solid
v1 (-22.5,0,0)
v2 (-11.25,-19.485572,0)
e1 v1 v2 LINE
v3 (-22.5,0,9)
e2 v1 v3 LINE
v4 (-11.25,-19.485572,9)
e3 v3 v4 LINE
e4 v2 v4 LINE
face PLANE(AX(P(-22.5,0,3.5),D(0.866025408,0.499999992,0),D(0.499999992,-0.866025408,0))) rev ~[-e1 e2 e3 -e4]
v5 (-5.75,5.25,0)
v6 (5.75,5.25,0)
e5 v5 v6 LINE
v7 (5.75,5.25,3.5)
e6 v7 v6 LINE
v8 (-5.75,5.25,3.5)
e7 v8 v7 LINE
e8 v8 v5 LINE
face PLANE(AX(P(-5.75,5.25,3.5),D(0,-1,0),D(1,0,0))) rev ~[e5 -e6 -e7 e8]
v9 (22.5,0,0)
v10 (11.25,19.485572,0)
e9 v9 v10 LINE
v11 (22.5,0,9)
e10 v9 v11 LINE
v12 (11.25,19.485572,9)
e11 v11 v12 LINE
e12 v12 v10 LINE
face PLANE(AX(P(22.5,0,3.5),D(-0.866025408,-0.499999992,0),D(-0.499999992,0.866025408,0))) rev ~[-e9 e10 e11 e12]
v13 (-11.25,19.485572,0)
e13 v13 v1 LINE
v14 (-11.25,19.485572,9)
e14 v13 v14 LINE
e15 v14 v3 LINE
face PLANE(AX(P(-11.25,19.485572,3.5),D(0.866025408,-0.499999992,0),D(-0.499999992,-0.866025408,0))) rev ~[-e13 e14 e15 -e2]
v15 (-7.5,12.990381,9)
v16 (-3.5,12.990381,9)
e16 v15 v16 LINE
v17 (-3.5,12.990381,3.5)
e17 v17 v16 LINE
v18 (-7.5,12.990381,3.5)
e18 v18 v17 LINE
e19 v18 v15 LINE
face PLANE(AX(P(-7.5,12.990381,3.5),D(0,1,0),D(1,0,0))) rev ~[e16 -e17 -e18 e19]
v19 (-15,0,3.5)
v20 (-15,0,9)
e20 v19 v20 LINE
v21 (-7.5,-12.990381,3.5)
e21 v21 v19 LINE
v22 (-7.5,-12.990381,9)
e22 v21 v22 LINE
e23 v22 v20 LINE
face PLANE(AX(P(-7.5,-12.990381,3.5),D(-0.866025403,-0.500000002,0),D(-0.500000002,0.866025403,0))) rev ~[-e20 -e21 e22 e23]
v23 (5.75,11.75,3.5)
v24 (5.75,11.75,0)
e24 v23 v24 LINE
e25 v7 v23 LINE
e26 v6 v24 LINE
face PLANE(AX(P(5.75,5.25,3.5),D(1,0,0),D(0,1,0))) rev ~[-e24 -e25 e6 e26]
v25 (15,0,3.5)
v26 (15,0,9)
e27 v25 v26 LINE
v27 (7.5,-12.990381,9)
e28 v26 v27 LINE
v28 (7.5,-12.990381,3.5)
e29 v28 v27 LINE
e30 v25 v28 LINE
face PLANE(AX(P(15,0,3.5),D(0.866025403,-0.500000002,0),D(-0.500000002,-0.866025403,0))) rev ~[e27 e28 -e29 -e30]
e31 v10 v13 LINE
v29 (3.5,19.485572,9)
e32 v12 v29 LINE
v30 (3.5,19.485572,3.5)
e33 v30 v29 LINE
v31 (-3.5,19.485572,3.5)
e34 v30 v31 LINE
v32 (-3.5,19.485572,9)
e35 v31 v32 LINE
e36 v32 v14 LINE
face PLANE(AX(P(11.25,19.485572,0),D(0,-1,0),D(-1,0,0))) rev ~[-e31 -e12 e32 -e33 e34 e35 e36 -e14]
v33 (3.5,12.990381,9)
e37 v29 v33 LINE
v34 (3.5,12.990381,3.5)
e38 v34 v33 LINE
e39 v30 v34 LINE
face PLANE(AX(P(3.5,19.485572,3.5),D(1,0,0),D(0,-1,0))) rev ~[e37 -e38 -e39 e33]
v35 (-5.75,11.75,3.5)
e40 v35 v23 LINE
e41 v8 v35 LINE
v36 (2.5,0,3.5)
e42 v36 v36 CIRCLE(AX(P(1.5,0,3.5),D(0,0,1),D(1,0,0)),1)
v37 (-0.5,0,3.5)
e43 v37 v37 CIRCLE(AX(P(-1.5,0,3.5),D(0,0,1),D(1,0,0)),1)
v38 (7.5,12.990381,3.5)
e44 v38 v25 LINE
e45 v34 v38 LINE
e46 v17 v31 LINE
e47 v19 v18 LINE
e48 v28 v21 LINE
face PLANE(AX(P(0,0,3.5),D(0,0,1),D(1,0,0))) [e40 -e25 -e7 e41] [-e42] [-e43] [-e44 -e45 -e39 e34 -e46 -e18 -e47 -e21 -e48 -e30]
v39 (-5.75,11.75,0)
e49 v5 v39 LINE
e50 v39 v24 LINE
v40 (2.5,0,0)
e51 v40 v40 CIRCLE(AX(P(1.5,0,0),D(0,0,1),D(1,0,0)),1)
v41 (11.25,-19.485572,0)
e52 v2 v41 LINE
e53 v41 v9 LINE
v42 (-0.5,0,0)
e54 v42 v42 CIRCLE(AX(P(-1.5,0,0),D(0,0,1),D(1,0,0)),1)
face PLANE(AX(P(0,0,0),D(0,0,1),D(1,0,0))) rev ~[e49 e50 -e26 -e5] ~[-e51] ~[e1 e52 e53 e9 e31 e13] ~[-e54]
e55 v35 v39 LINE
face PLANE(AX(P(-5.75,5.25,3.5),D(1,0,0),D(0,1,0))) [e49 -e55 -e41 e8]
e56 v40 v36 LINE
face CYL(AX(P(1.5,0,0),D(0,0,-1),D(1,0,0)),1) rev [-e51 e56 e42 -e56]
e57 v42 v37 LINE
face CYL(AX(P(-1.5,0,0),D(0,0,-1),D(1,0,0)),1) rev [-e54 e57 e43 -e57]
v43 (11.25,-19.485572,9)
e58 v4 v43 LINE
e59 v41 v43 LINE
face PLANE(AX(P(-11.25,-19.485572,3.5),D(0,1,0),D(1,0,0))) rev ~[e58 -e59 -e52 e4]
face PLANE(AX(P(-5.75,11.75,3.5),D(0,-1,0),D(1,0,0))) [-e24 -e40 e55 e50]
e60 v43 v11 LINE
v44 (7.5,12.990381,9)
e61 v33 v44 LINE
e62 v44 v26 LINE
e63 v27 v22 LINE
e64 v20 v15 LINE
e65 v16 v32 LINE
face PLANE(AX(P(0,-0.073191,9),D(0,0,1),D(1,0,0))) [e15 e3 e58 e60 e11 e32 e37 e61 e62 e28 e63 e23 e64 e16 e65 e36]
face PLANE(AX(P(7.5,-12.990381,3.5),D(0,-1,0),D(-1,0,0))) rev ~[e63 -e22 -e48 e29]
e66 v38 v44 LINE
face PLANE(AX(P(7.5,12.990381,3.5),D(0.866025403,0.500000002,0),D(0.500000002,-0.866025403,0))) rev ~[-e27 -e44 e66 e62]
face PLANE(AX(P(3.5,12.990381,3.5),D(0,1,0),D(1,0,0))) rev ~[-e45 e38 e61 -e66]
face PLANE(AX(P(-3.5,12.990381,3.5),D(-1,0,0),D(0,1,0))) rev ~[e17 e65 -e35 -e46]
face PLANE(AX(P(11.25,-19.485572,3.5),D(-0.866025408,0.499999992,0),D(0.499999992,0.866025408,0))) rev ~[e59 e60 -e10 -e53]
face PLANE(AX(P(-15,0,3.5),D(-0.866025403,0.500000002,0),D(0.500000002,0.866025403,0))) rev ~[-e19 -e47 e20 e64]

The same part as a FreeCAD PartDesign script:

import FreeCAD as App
import Part
import Sketcher

V = App.Vector
Q = App.Units.Quantity

doc = App.newDocument("Part")
body = doc.addObject("PartDesign::Body", "Body")

# Sketch on XY plane
sketch1 = body.newObject("Sketcher::SketchObject", "Sketch")
sketch1.AttachmentSupport = (doc.getObject("XY_Plane"), [""])
sketch1.MapMode = "FlatFace"
sketch1.addGeometry([
    Part.LineSegment(V(11.2, -19.5, 0), V(22.5, 0, 0)),  # 0
    Part.LineSegment(V(22.5, 0, 0), V(11.2, 19.5, 0)),  # 1
    Part.LineSegment(V(11.2, 19.5, 0), V(-11.2, 19.5, 0)),  # 2
    Part.LineSegment(V(-11.2, 19.5, 0), V(-22.5, 0, 0)),  # 3
    Part.LineSegment(V(-22.5, 0, 0), V(-11.2, -19.5, 0)),  # 4
    Part.LineSegment(V(-11.2, -19.5, 0), V(11.2, -19.5, 0)),  # 5
    Part.Circle(V(-1.5, 0, 0), V(0, 0, 1), 1),  # 6
    Part.Circle(V(1.5, 0, 0), V(0, 0, 1), 1),  # 7
], False)
sketch1.addConstraint([
    Sketcher.Constraint("Coincident", 0, 2, 1, 1),
    Sketcher.Constraint("Coincident", 1, 2, 2, 1),
    Sketcher.Constraint("Coincident", 2, 2, 3, 1),
    Sketcher.Constraint("Coincident", 3, 2, 4, 1),
    Sketcher.Constraint("Coincident", 4, 2, 5, 1),
    Sketcher.Constraint("Coincident", 5, 2, 0, 1),
    Sketcher.Constraint("Horizontal", 2),
    Sketcher.Constraint("Horizontal", 5),
    Sketcher.Constraint("Equal", 6, 7),
    Sketcher.Constraint("Symmetric", 6, 3, 7, 3, -1, 1),
    Sketcher.Constraint("Symmetric", 0, 2, 3, 2, -1, 1),
    Sketcher.Constraint("Symmetric", 1, 2, 4, 2, -1, 1),
    Sketcher.Constraint("PointOnObject", 6, 3, -1),
    Sketcher.Constraint("PointOnObject", 0, 2, -1),
    Sketcher.Constraint("Parallel", 0, 3),
    Sketcher.Constraint("Vertical", 2, 2, 4, 2),
    Sketcher.Constraint("Diameter", 6, 2.0),
    Sketcher.Constraint("Angle", 0, Q("60.000001 deg")),
    Sketcher.Constraint("DistanceX", 2, 2, 2, 1, 22.5),
    Sketcher.Constraint("DistanceX", 6, 3, 7, 3, 3.0),
    Sketcher.Constraint("DistanceX", 7, 3, 0, 2, 21.0),
])
pad1 = body.newObject("PartDesign::Pad", "Pad")
pad1.Profile = sketch1
pad1.Length = 3.5

# Sketch on XY plane
sketch2 = body.newObject("Sketcher::SketchObject", "Sketch001")
sketch2.AttachmentSupport = (doc.getObject("XY_Plane"), [""])
sketch2.MapMode = "FlatFace"
sketch2.AttachmentOffset = App.Placement(V(0, 0, 3.5), App.Rotation())
sketch2.addGeometry([
    Part.LineSegment(V(7.5, 13, 0), V(15, 0, 0)),  # 0
    Part.LineSegment(V(15, 0, 0), V(7.5, -13, 0)),  # 1
    Part.LineSegment(V(7.5, -13, 0), V(-7.5, -13, 0)),  # 2
    Part.LineSegment(V(-7.5, -13, 0), V(-15, 0, 0)),  # 3
    Part.LineSegment(V(-15, 0, 0), V(-7.5, 13, 0)),  # 4
    Part.LineSegment(V(-7.5, 13, 0), V(-3.5, 13, 0)),  # 5
    Part.LineSegment(V(-3.5, 13, 0), V(-3.5, 19.5, 0)),  # 6
    Part.LineSegment(V(-3.5, 19.5, 0), V(-11.2, 19.5, 0)),  # 7
    Part.LineSegment(V(-11.2, 19.5, 0), V(-22.5, 0, 0)),  # 8
    Part.LineSegment(V(-22.5, 0, 0), V(-11.2, -19.5, 0)),  # 9
    Part.LineSegment(V(-11.2, -19.5, 0), V(11.2, -19.5, 0)),  # 10
    Part.LineSegment(V(11.2, -19.5, 0), V(22.5, 0, 0)),  # 11
    Part.LineSegment(V(22.5, 0, 0), V(11.2, 19.5, 0)),  # 12
    Part.LineSegment(V(11.2, 19.5, 0), V(3.5, 19.5, 0)),  # 13
    Part.LineSegment(V(3.5, 19.5, 0), V(3.5, 13, 0)),  # 14
    Part.LineSegment(V(3.5, 13, 0), V(7.5, 13, 0)),  # 15
], False)
sketch2.addConstraint([
    Sketcher.Constraint("Coincident", 0, 2, 1, 1),
    Sketcher.Constraint("Coincident", 1, 2, 2, 1),
    Sketcher.Constraint("Coincident", 2, 2, 3, 1),
    Sketcher.Constraint("Coincident", 3, 2, 4, 1),
    Sketcher.Constraint("Coincident", 4, 2, 5, 1),
    Sketcher.Constraint("Coincident", 5, 2, 6, 1),
    Sketcher.Constraint("Coincident", 6, 2, 7, 1),
    Sketcher.Constraint("Coincident", 7, 2, 8, 1),
    Sketcher.Constraint("Coincident", 8, 2, 9, 1),
    Sketcher.Constraint("Coincident", 9, 2, 10, 1),
    Sketcher.Constraint("Coincident", 10, 2, 11, 1),
    Sketcher.Constraint("Coincident", 11, 2, 12, 1),
    Sketcher.Constraint("Coincident", 12, 2, 13, 1),
    Sketcher.Constraint("Coincident", 13, 2, 14, 1),
    Sketcher.Constraint("Coincident", 14, 2, 15, 1),
    Sketcher.Constraint("Coincident", 15, 2, 0, 1),
    Sketcher.Constraint("Horizontal", 2),
    Sketcher.Constraint("Horizontal", 5),
    Sketcher.Constraint("Vertical", 6),
    Sketcher.Constraint("Horizontal", 7),
    Sketcher.Constraint("Horizontal", 10),
    Sketcher.Constraint("Horizontal", 13),
    Sketcher.Constraint("Vertical", 14),
    Sketcher.Constraint("Horizontal", 15),
    Sketcher.Constraint("Symmetric", 0, 2, 3, 2, -1, 1),
    Sketcher.Constraint("Symmetric", 1, 2, 4, 2, -1, 1),
    Sketcher.Constraint("Symmetric", 7, 2, 10, 2, -1, 1),
    Sketcher.Constraint("Symmetric", 8, 2, 11, 2, -1, 1),
    Sketcher.Constraint("Symmetric", 9, 2, 12, 2, -1, 1),
    Sketcher.Constraint("Symmetric", 2, 2, 15, 2, -1, 1),
    Sketcher.Constraint("PointOnObject", 0, 2, -1),
    Sketcher.Constraint("PointOnObject", 8, 2, -1),
    Sketcher.Constraint("Parallel", 4, 8),
    Sketcher.Constraint("Parallel", 3, 9),
    Sketcher.Constraint("Vertical", 2, 2, 4, 2),
    Sketcher.Constraint("Equal", 7, 13),
    Sketcher.Constraint("DistanceX", 2, 2, 2, 1, 15.0),
    Sketcher.Constraint("DistanceX", 5, 1, 5, 2, 4.0),
    Sketcher.Constraint("Angle", 0, Q("-60 deg")),
    Sketcher.Constraint("Distance", 0, 15.0),
    Sketcher.Constraint("DistanceX", 10, 1, 10, 2, 22.5),
    Sketcher.Constraint("DistanceX", 8, 2, 2, 2, 15.0),
])
pad2 = body.newObject("PartDesign::Pad", "Pad001")
pad2.Profile = sketch2
pad2.Length = 5.5

# Sketch on XY plane
sketch3 = body.newObject("Sketcher::SketchObject", "Sketch002")
sketch3.AttachmentSupport = (doc.getObject("XY_Plane"), [""])
sketch3.MapMode = "FlatFace"
sketch3.AttachmentOffset = App.Placement(V(0, 0, 3.5), App.Rotation())
sketch3.addGeometry([
    Part.LineSegment(V(-6, 12, 0), V(-6, 5, 0)),
    Part.LineSegment(V(-6, 5, 0), V(6, 5, 0)),
    Part.LineSegment(V(6, 5, 0), V(6, 12, 0)),
    Part.LineSegment(V(6, 12, 0), V(-6, 12, 0)),
], False)
sketch3.addConstraint([
    Sketcher.Constraint("Coincident", 0, 2, 1, 1),
    Sketcher.Constraint("Coincident", 1, 2, 2, 1),
    Sketcher.Constraint("Coincident", 2, 2, 3, 1),
    Sketcher.Constraint("Coincident", 3, 2, 0, 1),
    Sketcher.Constraint("Vertical", 0),
    Sketcher.Constraint("Horizontal", 1),
    Sketcher.Constraint("Vertical", 2),
    Sketcher.Constraint("Horizontal", 3),
    Sketcher.Constraint("DistanceX", 1, 1, 1, 2, 11.5),
    Sketcher.Constraint("DistanceY", 0, 2, 0, 1, 6.5),
    Sketcher.Constraint("DistanceX", 0, 2, -1, 1, 5.75),
    Sketcher.Constraint("DistanceY", -1, 1, 0, 2, 5.25),
])
pocket1 = body.newObject("PartDesign::Pocket", "Pocket")
pocket1.Profile = sketch3
pocket1.Type = "ThroughAll"

doc.recompute()
